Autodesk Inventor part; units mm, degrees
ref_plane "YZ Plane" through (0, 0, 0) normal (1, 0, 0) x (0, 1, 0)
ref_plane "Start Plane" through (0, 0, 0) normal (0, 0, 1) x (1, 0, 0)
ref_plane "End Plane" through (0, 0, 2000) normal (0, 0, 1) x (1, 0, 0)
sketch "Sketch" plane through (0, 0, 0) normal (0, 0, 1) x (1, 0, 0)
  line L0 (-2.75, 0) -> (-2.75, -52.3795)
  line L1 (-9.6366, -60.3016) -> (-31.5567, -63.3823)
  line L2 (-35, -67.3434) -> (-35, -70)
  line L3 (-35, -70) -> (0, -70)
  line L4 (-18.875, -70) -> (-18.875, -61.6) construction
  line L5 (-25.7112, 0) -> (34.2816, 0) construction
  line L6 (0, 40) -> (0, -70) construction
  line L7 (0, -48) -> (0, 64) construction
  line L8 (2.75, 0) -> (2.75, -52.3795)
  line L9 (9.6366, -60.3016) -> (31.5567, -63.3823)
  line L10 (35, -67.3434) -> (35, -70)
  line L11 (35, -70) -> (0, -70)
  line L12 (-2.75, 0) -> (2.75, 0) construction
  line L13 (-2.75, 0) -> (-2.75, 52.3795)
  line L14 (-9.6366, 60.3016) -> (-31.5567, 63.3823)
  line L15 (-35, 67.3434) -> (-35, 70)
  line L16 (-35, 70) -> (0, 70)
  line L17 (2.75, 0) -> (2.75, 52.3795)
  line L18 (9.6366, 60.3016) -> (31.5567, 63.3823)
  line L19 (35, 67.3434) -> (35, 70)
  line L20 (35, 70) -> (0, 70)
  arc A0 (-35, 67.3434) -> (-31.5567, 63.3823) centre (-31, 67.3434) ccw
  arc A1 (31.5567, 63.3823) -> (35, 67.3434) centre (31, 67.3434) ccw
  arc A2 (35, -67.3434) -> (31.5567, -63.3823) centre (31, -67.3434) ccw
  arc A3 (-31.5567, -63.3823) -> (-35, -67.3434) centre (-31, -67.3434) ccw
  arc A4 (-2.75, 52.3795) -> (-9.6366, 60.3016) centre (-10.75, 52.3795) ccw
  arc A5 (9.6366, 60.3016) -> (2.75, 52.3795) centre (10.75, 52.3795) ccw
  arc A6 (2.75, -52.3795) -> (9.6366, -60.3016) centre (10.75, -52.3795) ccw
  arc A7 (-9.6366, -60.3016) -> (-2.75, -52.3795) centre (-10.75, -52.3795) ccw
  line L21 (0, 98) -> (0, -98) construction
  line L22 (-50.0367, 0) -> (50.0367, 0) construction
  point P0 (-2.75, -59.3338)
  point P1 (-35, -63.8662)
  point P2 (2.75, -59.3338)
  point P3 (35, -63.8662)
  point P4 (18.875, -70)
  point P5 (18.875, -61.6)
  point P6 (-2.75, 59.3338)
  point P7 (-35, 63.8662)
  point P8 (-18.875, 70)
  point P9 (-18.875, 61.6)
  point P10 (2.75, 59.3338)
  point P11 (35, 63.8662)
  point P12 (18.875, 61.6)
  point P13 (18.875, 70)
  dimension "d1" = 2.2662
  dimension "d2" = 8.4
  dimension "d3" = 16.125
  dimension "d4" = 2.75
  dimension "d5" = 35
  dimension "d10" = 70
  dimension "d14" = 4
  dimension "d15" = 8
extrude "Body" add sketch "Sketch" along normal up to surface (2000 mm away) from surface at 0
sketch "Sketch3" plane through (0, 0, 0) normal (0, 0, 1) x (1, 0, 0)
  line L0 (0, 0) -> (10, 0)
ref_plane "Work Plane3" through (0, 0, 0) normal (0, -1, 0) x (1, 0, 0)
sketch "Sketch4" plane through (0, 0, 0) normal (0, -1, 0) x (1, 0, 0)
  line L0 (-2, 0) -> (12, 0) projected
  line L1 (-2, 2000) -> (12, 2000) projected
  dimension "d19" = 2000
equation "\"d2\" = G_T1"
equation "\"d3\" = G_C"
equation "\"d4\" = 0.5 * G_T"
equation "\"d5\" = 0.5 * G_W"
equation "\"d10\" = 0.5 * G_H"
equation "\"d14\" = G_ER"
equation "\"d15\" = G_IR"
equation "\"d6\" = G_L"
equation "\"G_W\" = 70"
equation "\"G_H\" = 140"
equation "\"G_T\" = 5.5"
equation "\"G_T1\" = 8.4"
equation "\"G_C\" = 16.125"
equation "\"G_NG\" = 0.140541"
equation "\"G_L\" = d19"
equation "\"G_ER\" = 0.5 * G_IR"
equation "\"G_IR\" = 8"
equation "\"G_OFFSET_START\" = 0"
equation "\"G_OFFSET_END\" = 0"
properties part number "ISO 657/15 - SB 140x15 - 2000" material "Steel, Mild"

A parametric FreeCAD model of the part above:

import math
import FreeCAD as App
import Part
import Sketcher

V = App.Vector
Q = App.Units.Quantity

doc = App.newDocument("Part")
params = doc.addObject("Spreadsheet::Sheet", "Params")
for row, (alias, value) in enumerate([
    ("sketch1_radius", "8 mm"),
    ("sketch1_radius2", "4 mm"),
    ("sketch1_width", "70 mm"),
    ("pad1_length", "2000 mm"),
], start=1):
    params.set(f"A{row}", alias)
    params.set(f"B{row}", "=" + value)
    params.setAlias(f"B{row}", alias)

body = doc.addObject("PartDesign::Body", "Body")

# Sketch on XY plane
sketch1 = body.newObject("Sketcher::SketchObject", "Sketch")
sketch1.AttachmentSupport = (doc.getObject("XY_Plane"), [""])
sketch1.MapMode = "FlatFace"
sketch1.addGeometry(Part.LineSegment(V(-2.8, 52.4, 0), V(-2.8, -52.4, 0)), False)
sketch1.addGeometry(Part.ArcOfCircle(Part.Circle(V(-10.8, -52.4, 0), V(0, 0, 1), 8), math.radians(-82), math.radians(0)), False)
sketch1.addGeometry(Part.LineSegment(V(-9.6, -60.3, 0), V(-31.6, -63.4, 0)), False)
sketch1.addGeometry(Part.ArcOfCircle(Part.Circle(V(-31, -67.3, 0), V(0, 0, 1), 4), math.radians(98), math.radians(180)), False)
sketch1.addGeometry(Part.LineSegment(V(-35, -67.3, 0), V(-35, -70, 0)), False)
sketch1.addGeometry(Part.LineSegment(V(-35, -70, 0), V(35, -70, 0)), False)
sketch1.addGeometry(Part.LineSegment(V(35, -70, 0), V(35, -67.3, 0)), False)
sketch1.addGeometry(Part.ArcOfCircle(Part.Circle(V(31, -67.3, 0), V(0, 0, 1), 4), math.radians(0), math.radians(82)), False)
sketch1.addGeometry(Part.LineSegment(V(31.6, -63.4, 0), V(9.6, -60.3, 0)), False)
sketch1.addGeometry(Part.ArcOfCircle(Part.Circle(V(10.8, -52.4, 0), V(0, 0, 1), 8), math.radians(180), math.radians(262)), False)
sketch1.addGeometry(Part.LineSegment(V(2.8, -52.4, 0), V(2.8, 52.4, 0)), False)
sketch1.addGeometry(Part.ArcOfCircle(Part.Circle(V(10.8, 52.4, 0), V(0, 0, 1), 8), math.radians(98), math.radians(180)), False)
sketch1.addGeometry(Part.LineSegment(V(9.6, 60.3, 0), V(31.6, 63.4, 0)), False)
sketch1.addGeometry(Part.ArcOfCircle(Part.Circle(V(31, 67.3, 0), V(0, 0, 1), 4), math.radians(-82), math.radians(0)), False)
sketch1.addGeometry(Part.LineSegment(V(35, 67.3, 0), V(35, 70, 0)), False)
sketch1.addGeometry(Part.LineSegment(V(35, 70, 0), V(-35, 70, 0)), False)
sketch1.addGeometry(Part.LineSegment(V(-35, 70, 0), V(-35, 67.3, 0)), False)
sketch1.addGeometry(Part.ArcOfCircle(Part.Circle(V(-31, 67.3, 0), V(0, 0, 1), 4), math.radians(180), math.radians(262)), False)
sketch1.addGeometry(Part.LineSegment(V(-31.6, 63.4, 0), V(-9.6, 60.3, 0)), False)
sketch1.addGeometry(Part.ArcOfCircle(Part.Circle(V(-10.8, 52.4, 0), V(0, 0, 1), 8), math.radians(0), math.radians(82)), False)
sketch1.addConstraint(Sketcher.Constraint("Tangent", 0, 2, 1, 2))
sketch1.addConstraint(Sketcher.Constraint("Tangent", 1, 1, 2, 1))
sketch1.addConstraint(Sketcher.Constraint("Tangent", 2, 2, 3, 1))
sketch1.addConstraint(Sketcher.Constraint("Tangent", 3, 2, 4, 1))
sketch1.addConstraint(Sketcher.Constraint("Coincident", 4, 2, 5, 1))
sketch1.addConstraint(Sketcher.Constraint("Coincident", 5, 2, 6, 1))
sketch1.addConstraint(Sketcher.Constraint("Tangent", 6, 2, 7, 1))
sketch1.addConstraint(Sketcher.Constraint("Tangent", 7, 2, 8, 1))
sketch1.addConstraint(Sketcher.Constraint("Tangent", 8, 2, 9, 2))
sketch1.addConstraint(Sketcher.Constraint("Tangent", 9, 1, 10, 1))
sketch1.addConstraint(Sketcher.Constraint("Tangent", 10, 2, 11, 2))
sketch1.addConstraint(Sketcher.Constraint("Tangent", 11, 1, 12, 1))
sketch1.addConstraint(Sketcher.Constraint("Tangent", 12, 2, 13, 1))
sketch1.addConstraint(Sketcher.Constraint("Tangent", 13, 2, 14, 1))
sketch1.addConstraint(Sketcher.Constraint("Coincident", 14, 2, 15, 1))
sketch1.addConstraint(Sketcher.Constraint("Coincident", 15, 2, 16, 1))
sketch1.addConstraint(Sketcher.Constraint("Tangent", 16, 2, 17, 1))
sketch1.addConstraint(Sketcher.Constraint("Tangent", 17, 2, 18, 1))
sketch1.addConstraint(Sketcher.Constraint("Tangent", 18, 2, 19, 2))
sketch1.addConstraint(Sketcher.Constraint("Tangent", 19, 1, 0, 1))
sketch1.addConstraint(Sketcher.Constraint("Vertical", 0))
sketch1.addConstraint(Sketcher.Constraint("Vertical", 4))
sketch1.addConstraint(Sketcher.Constraint("Horizontal", 5))
sketch1.addConstraint(Sketcher.Constraint("Vertical", 6))
sketch1.addConstraint(Sketcher.Constraint("Vertical", 10))
sketch1.addConstraint(Sketcher.Constraint("Vertical", 14))
sketch1.addConstraint(Sketcher.Constraint("Horizontal", 15))
sketch1.addConstraint(Sketcher.Constraint("Vertical", 16))
sketch1.addConstraint(Sketcher.Constraint("Equal", 3, 7))
sketch1.addConstraint(Sketcher.Constraint("Equal", 1, 9))
sketch1.addConstraint(Sketcher.Constraint("Equal", 9, 11))
sketch1.addConstraint(Sketcher.Constraint("Equal", 7, 13))
sketch1.addConstraint(Sketcher.Constraint("Equal", 13, 17))
sketch1.addConstraint(Sketcher.Constraint("Equal", 11, 19))
sketch1.addConstraint(Sketcher.Constraint("Symmetric", 1, 3, 11, 3, -1, 1))
sketch1.addConstraint(Sketcher.Constraint("Symmetric", 3, 3, 13, 3, -1, 1))
sketch1.addConstraint(Sketcher.Constraint("Symmetric", 7, 3, 17, 3, -1, 1))
sketch1.addConstraint(Sketcher.Constraint("Symmetric", 3, 3, 7, 3, -2))
sketch1.addConstraint(Sketcher.Constraint("Parallel", 8, 18))
sketch1.addConstraint(Sketcher.Constraint("Horizontal", 1, 3, 9, 3))
sketch1.addConstraint(Sketcher.Constraint("Equal", 6, 14))
sketch1.addConstraint(Sketcher.Constraint("Radius", 1, Q("8 mm")))
sketch1.addConstraint(Sketcher.Constraint("Radius", 3, Q("4 mm")))
sketch1.addConstraint(Sketcher.Constraint("DistanceX", 5, 1, 5, 2, Q("70 mm")))
sketch1.addConstraint(Sketcher.Constraint("Angle", 12, Q("8 deg")))
sketch1.addConstraint(Sketcher.Constraint("DistanceY", 4, 2, -1, 1, Q("70 mm")))
sketch1.addConstraint(Sketcher.Constraint("DistanceX", 0, 2, -1, 1, Q("2.75 mm")))
sketch1.addConstraint(Sketcher.Constraint("DistanceY", 0, 2, 0, 1, Q("104.759 mm")))
sketch1.setExpression("Constraints[41]", "Params.sketch1_radius")
sketch1.setExpression("Constraints[42]", "Params.sketch1_radius2")
sketch1.setExpression("Constraints[43]", "Params.sketch1_width")
pad1 = body.newObject("PartDesign::Pad", "Pad")
pad1.Profile = sketch1
pad1.setExpression("Length", "Params.pad1_length")

doc.recompute()
